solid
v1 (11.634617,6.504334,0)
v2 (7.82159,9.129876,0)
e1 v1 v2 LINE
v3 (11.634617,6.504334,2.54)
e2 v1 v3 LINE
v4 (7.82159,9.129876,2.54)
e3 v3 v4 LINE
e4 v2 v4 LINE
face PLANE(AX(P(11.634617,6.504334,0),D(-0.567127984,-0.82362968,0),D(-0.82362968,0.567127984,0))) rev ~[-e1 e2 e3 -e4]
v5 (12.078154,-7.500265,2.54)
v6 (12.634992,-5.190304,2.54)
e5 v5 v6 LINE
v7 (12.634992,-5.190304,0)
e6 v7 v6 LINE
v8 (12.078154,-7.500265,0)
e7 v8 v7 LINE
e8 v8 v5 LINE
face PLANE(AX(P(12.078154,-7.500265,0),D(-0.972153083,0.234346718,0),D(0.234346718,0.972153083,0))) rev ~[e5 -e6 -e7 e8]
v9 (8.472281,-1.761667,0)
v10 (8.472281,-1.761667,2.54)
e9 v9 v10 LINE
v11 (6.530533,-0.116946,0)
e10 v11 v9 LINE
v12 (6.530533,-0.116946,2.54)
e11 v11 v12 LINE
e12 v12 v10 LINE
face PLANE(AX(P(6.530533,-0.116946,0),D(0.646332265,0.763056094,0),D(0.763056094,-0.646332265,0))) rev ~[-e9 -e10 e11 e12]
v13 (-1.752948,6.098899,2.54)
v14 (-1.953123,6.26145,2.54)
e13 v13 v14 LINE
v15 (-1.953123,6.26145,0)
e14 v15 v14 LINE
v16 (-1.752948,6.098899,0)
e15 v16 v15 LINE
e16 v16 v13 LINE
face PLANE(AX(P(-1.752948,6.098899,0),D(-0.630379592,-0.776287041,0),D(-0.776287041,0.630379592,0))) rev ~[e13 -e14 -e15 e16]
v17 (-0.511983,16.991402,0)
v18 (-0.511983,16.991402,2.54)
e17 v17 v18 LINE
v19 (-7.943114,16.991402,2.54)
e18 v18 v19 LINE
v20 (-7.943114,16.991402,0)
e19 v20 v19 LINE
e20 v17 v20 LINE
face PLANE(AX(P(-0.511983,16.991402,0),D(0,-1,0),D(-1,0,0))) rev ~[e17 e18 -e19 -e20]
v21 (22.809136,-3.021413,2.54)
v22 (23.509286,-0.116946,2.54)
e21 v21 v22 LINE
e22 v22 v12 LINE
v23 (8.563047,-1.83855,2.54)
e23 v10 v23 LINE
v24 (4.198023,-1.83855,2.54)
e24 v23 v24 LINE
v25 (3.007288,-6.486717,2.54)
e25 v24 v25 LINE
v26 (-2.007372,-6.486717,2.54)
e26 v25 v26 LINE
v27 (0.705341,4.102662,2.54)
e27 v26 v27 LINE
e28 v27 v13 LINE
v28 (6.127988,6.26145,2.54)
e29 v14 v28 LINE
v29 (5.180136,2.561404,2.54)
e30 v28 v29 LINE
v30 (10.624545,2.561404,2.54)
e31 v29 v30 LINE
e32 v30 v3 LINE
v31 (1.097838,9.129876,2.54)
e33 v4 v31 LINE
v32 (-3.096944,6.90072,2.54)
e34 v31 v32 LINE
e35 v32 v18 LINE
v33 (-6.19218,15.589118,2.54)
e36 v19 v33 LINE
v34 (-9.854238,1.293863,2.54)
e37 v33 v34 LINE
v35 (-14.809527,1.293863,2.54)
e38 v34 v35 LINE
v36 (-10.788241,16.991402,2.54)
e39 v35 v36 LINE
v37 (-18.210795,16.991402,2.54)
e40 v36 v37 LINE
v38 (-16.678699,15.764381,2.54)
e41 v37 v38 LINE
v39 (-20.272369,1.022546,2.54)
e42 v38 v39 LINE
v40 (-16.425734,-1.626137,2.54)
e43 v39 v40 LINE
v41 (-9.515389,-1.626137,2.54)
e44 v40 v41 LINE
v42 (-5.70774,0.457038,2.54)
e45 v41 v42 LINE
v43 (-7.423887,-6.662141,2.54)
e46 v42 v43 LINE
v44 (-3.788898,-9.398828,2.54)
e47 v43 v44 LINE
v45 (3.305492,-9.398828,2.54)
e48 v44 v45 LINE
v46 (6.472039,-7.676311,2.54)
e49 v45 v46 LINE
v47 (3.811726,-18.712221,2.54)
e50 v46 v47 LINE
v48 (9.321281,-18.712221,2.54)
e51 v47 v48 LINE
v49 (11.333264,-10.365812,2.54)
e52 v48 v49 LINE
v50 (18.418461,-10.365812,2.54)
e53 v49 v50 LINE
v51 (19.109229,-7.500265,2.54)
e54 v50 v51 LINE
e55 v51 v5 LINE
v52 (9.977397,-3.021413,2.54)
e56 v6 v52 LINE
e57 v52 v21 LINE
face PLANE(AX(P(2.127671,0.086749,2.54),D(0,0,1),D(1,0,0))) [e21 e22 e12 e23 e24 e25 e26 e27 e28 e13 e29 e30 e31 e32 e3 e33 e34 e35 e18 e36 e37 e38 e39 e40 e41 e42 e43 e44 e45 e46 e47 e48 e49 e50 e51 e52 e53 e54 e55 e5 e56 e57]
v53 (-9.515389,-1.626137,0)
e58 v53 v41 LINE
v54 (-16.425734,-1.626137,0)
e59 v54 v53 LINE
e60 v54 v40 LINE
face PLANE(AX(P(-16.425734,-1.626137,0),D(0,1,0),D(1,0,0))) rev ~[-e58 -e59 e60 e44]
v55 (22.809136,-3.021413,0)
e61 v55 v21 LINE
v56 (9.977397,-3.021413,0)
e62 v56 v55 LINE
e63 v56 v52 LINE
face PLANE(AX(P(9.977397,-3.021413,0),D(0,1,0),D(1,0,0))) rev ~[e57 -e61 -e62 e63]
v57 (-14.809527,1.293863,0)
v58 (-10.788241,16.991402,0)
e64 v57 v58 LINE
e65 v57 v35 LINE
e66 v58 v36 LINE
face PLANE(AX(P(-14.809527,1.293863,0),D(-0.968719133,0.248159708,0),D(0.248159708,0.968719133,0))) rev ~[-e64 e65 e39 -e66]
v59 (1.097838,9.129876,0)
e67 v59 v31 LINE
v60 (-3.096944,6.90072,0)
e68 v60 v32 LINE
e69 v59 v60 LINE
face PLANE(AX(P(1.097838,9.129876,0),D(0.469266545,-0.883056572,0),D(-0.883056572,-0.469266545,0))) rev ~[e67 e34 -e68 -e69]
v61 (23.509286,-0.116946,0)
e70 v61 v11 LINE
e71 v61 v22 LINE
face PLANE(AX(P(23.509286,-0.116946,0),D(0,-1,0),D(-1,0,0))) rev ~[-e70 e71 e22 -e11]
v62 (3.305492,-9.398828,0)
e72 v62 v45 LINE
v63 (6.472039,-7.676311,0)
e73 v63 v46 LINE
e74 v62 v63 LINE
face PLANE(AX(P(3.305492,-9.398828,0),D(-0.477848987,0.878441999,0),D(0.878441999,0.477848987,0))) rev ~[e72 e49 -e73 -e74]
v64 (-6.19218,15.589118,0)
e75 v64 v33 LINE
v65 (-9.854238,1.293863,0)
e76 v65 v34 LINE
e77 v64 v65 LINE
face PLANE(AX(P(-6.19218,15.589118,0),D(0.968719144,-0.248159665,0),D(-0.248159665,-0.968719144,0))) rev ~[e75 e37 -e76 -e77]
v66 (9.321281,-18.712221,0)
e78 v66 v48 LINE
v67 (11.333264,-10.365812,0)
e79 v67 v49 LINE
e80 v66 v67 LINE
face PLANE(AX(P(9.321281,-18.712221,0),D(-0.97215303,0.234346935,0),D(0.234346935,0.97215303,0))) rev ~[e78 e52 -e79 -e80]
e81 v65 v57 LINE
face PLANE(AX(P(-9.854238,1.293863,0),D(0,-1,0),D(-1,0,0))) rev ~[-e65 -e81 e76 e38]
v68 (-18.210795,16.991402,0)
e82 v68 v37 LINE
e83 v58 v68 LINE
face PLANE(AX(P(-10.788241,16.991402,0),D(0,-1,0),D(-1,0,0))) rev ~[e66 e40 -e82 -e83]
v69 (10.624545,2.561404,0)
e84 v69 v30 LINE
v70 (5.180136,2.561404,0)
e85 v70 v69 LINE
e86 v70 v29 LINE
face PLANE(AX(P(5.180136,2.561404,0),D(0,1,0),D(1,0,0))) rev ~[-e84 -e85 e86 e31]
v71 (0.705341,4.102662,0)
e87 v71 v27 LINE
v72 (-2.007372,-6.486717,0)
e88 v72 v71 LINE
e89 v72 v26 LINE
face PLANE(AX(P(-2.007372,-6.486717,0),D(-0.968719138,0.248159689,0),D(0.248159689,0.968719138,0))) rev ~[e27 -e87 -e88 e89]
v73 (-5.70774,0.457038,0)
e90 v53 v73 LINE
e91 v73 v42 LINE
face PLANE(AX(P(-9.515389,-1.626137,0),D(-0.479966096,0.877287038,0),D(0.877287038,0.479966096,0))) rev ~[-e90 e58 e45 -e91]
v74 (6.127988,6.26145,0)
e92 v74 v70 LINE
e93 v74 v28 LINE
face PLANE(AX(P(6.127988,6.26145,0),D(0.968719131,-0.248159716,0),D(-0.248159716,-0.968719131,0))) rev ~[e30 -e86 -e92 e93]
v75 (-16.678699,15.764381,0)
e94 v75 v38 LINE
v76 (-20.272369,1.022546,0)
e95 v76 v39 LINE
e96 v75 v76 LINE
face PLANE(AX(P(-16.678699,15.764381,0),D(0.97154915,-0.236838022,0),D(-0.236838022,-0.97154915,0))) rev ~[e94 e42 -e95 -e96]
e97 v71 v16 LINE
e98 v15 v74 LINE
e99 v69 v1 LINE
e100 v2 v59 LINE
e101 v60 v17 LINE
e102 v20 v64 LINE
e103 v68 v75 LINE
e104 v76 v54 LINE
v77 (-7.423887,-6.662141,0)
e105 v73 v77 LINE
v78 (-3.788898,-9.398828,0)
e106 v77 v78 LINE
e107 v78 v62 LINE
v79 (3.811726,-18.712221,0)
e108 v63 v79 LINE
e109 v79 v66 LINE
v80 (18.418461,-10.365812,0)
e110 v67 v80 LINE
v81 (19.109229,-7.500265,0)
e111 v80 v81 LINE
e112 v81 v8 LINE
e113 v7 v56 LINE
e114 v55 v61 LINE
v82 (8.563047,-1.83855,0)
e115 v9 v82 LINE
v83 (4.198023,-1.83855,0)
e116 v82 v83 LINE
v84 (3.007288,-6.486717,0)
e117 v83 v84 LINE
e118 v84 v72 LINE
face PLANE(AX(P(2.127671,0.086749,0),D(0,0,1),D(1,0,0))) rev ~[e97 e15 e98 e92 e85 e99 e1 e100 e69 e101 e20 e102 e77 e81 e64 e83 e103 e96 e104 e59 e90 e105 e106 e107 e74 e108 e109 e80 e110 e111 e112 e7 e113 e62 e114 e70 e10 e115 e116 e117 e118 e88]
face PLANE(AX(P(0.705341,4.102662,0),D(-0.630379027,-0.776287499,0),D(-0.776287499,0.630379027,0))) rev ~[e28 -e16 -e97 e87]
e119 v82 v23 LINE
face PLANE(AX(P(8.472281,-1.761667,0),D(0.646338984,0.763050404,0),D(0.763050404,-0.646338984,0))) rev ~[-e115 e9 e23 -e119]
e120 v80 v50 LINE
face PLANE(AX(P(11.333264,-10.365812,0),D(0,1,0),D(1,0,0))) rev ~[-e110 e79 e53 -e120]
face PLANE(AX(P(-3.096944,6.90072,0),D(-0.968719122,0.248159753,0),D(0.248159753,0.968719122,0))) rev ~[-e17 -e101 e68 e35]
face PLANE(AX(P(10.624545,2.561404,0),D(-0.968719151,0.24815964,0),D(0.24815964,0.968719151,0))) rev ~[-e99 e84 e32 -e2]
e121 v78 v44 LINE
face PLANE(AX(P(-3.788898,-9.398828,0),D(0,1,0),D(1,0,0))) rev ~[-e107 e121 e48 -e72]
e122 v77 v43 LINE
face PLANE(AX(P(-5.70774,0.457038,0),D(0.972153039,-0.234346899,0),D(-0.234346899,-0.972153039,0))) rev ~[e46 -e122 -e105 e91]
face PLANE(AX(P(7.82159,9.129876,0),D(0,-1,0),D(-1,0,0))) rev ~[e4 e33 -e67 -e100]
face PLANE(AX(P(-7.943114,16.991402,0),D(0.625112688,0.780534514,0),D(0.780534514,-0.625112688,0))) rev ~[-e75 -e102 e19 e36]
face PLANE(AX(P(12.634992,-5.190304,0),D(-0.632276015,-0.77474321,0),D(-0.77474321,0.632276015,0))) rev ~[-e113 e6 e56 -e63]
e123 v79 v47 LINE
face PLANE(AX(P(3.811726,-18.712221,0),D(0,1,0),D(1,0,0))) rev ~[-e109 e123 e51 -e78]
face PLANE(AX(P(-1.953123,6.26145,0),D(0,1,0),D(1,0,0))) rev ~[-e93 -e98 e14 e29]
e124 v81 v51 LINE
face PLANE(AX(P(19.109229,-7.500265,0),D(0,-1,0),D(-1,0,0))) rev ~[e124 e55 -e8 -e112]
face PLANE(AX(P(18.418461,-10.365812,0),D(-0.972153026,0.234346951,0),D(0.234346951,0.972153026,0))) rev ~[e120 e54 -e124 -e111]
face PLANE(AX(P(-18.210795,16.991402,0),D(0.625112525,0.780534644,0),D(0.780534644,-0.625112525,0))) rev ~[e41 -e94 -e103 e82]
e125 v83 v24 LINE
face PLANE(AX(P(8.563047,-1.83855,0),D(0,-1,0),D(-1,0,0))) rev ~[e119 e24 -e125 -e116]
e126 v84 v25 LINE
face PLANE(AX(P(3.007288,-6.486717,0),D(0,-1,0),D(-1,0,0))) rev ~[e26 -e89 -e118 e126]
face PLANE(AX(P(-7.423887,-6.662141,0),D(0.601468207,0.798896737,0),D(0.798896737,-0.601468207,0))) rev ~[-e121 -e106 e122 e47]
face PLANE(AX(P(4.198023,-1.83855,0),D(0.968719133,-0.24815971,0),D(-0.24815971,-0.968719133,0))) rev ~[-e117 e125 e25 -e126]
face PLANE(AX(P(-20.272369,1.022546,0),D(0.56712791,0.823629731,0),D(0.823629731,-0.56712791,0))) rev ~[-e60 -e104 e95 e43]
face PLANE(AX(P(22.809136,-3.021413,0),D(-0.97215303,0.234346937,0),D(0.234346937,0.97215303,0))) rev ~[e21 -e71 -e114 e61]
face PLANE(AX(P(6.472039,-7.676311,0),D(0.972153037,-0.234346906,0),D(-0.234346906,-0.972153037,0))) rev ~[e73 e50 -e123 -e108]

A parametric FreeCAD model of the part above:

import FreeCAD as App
import Part
import Sketcher
from FreeCAD import Vector
Q = App.Units.Quantity

doc = App.newDocument("Part")
params = doc.addObject("Spreadsheet::Sheet", "Params")
for row, (alias, value) in enumerate([
    ("pad1_length", "0.1 in"),
], start=1):
    params.set(f"A{row}", alias)
    params.set(f"B{row}", "=" + value)
    params.setAlias(f"B{row}", alias)

body = doc.addObject("PartDesign::Body", "Body")

sketch1 = body.newObject("Sketcher::SketchObject", "Sketch")
sketch1.AttachmentSupport = (doc.getObject("XY_Plane"), [""])
sketch1.MapMode = "FlatFace"
sketch1.addGeometry([
    Part.LineSegment(Vector(0.71, 4.1, 0), Vector(-1.75, 6.1, 0)),
    Part.LineSegment(Vector(-1.75, 6.1, 0), Vector(-1.95, 6.26, 0)),
    Part.LineSegment(Vector(-1.95, 6.26, 0), Vector(6.13, 6.26, 0)),
    Part.LineSegment(Vector(6.13, 6.26, 0), Vector(5.18, 2.56, 0)),
    Part.LineSegment(Vector(5.18, 2.56, 0), Vector(10.62, 2.56, 0)),
    Part.LineSegment(Vector(10.62, 2.56, 0), Vector(11.63, 6.5, 0)),
    Part.LineSegment(Vector(11.63, 6.5, 0), Vector(7.82, 9.13, 0)),
    Part.LineSegment(Vector(7.82, 9.13, 0), Vector(1.1, 9.13, 0)),
    Part.LineSegment(Vector(1.1, 9.13, 0), Vector(-3.1, 6.9, 0)),
    Part.LineSegment(Vector(-3.1, 6.9, 0), Vector(-0.51, 16.99, 0)),
    Part.LineSegment(Vector(-0.51, 16.99, 0), Vector(-7.94, 16.99, 0)),
    Part.LineSegment(Vector(-7.94, 16.99, 0), Vector(-6.19, 15.59, 0)),
    Part.LineSegment(Vector(-6.19, 15.59, 0), Vector(-9.85, 1.29, 0)),
    Part.LineSegment(Vector(-9.85, 1.29, 0), Vector(-14.81, 1.29, 0)),
    Part.LineSegment(Vector(-14.81, 1.29, 0), Vector(-10.79, 16.99, 0)),
    Part.LineSegment(Vector(-10.79, 16.99, 0), Vector(-18.21, 16.99, 0)),
    Part.LineSegment(Vector(-18.21, 16.99, 0), Vector(-16.68, 15.76, 0)),
    Part.LineSegment(Vector(-16.68, 15.76, 0), Vector(-20.27, 1.02, 0)),
    Part.LineSegment(Vector(-20.27, 1.02, 0), Vector(-16.43, -1.63, 0)),
    Part.LineSegment(Vector(-16.43, -1.63, 0), Vector(-9.52, -1.63, 0)),
    Part.LineSegment(Vector(-9.52, -1.63, 0), Vector(-5.71, 0.46, 0)),
    Part.LineSegment(Vector(-5.71, 0.46, 0), Vector(-7.42, -6.66, 0)),
    Part.LineSegment(Vector(-7.42, -6.66, 0), Vector(-3.79, -9.4, 0)),
    Part.LineSegment(Vector(-3.79, -9.4, 0), Vector(3.31, -9.4, 0)),
    Part.LineSegment(Vector(3.31, -9.4, 0), Vector(6.47, -7.68, 0)),
    Part.LineSegment(Vector(6.47, -7.68, 0), Vector(3.81, -18.71, 0)),
    Part.LineSegment(Vector(3.81, -18.71, 0), Vector(9.32, -18.71, 0)),
    Part.LineSegment(Vector(9.32, -18.71, 0), Vector(11.33, -10.37, 0)),
    Part.LineSegment(Vector(11.33, -10.37, 0), Vector(18.42, -10.37, 0)),
    Part.LineSegment(Vector(18.42, -10.37, 0), Vector(19.11, -7.5, 0)),
    Part.LineSegment(Vector(19.11, -7.5, 0), Vector(12.08, -7.5, 0)),
    Part.LineSegment(Vector(12.08, -7.5, 0), Vector(12.63, -5.19, 0)),
    Part.LineSegment(Vector(12.63, -5.19, 0), Vector(9.98, -3.02, 0)),
    Part.LineSegment(Vector(9.98, -3.02, 0), Vector(22.81, -3.02, 0)),
    Part.LineSegment(Vector(22.81, -3.02, 0), Vector(23.51, -0.12, 0)),
    Part.LineSegment(Vector(23.51, -0.12, 0), Vector(6.53, -0.12, 0)),
    Part.LineSegment(Vector(6.53, -0.12, 0), Vector(8.47, -1.76, 0)),
    Part.LineSegment(Vector(8.47, -1.76, 0), Vector(8.56, -1.84, 0)),
    Part.LineSegment(Vector(8.56, -1.84, 0), Vector(4.2, -1.84, 0)),
    Part.LineSegment(Vector(4.2, -1.84, 0), Vector(3.01, -6.49, 0)),
    Part.LineSegment(Vector(3.01, -6.49, 0), Vector(-2.01, -6.49, 0)),
    Part.LineSegment(Vector(-2.01, -6.49, 0), Vector(0.71, 4.1, 0)),
], False)
sketch1.addConstraint([
    Sketcher.Constraint("Coincident", 0, 2, 1, 1),
    Sketcher.Constraint("Coincident", 1, 2, 2, 1),
    Sketcher.Constraint("Coincident", 2, 2, 3, 1),
    Sketcher.Constraint("Coincident", 3, 2, 4, 1),
    Sketcher.Constraint("Coincident", 4, 2, 5, 1),
    Sketcher.Constraint("Coincident", 5, 2, 6, 1),
    Sketcher.Constraint("Coincident", 6, 2, 7, 1),
    Sketcher.Constraint("Coincident", 7, 2, 8, 1),
    Sketcher.Constraint("Coincident", 8, 2, 9, 1),
    Sketcher.Constraint("Coincident", 9, 2, 10, 1),
    Sketcher.Constraint("Coincident", 10, 2, 11, 1),
    Sketcher.Constraint("Coincident", 11, 2, 12, 1),
    Sketcher.Constraint("Coincident", 12, 2, 13, 1),
    Sketcher.Constraint("Coincident", 13, 2, 14, 1),
    Sketcher.Constraint("Coincident", 14, 2, 15, 1),
    Sketcher.Constraint("Coincident", 15, 2, 16, 1),
    Sketcher.Constraint("Coincident", 16, 2, 17, 1),
    Sketcher.Constraint("Coincident", 17, 2, 18, 1),
    Sketcher.Constraint("Coincident", 18, 2, 19, 1),
    Sketcher.Constraint("Coincident", 19, 2, 20, 1),
    Sketcher.Constraint("Coincident", 20, 2, 21, 1),
    Sketcher.Constraint("Coincident", 21, 2, 22, 1),
    Sketcher.Constraint("Coincident", 22, 2, 23, 1),
    Sketcher.Constraint("Coincident", 23, 2, 24, 1),
    Sketcher.Constraint("Coincident", 24, 2, 25, 1),
    Sketcher.Constraint("Coincident", 25, 2, 26, 1),
    Sketcher.Constraint("Coincident", 26, 2, 27, 1),
    Sketcher.Constraint("Coincident", 27, 2, 28, 1),
    Sketcher.Constraint("Coincident", 28, 2, 29, 1),
    Sketcher.Constraint("Coincident", 29, 2, 30, 1),
    Sketcher.Constraint("Coincident", 30, 2, 31, 1),
    Sketcher.Constraint("Coincident", 31, 2, 32, 1),
    Sketcher.Constraint("Coincident", 32, 2, 33, 1),
    Sketcher.Constraint("Coincident", 33, 2, 34, 1),
    Sketcher.Constraint("Coincident", 34, 2, 35, 1),
    Sketcher.Constraint("Coincident", 35, 2, 36, 1),
    Sketcher.Constraint("Coincident", 36, 2, 37, 1),
    Sketcher.Constraint("Coincident", 37, 2, 38, 1),
    Sketcher.Constraint("Coincident", 38, 2, 39, 1),
    Sketcher.Constraint("Coincident", 39, 2, 40, 1),
    Sketcher.Constraint("Coincident", 40, 2, 41, 1),
    Sketcher.Constraint("Coincident", 41, 2, 0, 1),
    Sketcher.Constraint("Horizontal", 2),
    Sketcher.Constraint("Horizontal", 4),
    Sketcher.Constraint("Horizontal", 7),
    Sketcher.Constraint("Horizontal", 10),
    Sketcher.Constraint("Horizontal", 13),
    Sketcher.Constraint("Horizontal", 15),
    Sketcher.Constraint("Horizontal", 19),
    Sketcher.Constraint("Horizontal", 23),
    Sketcher.Constraint("Horizontal", 26),
    Sketcher.Constraint("Horizontal", 28),
    Sketcher.Constraint("Horizontal", 30),
    Sketcher.Constraint("Horizontal", 33),
    Sketcher.Constraint("Horizontal", 35),
    Sketcher.Constraint("Horizontal", 38),
    Sketcher.Constraint("Horizontal", 40),
    Sketcher.Constraint("Parallel", 0, 1),
    Sketcher.Constraint("Parallel", 3, 5),
    Sketcher.Constraint("Parallel", 5, 9),
    Sketcher.Constraint("Parallel", 9, 12),
    Sketcher.Constraint("Parallel", 12, 14),
    Sketcher.Constraint("Parallel", 11, 16),
    Sketcher.Constraint("Parallel", 6, 18),
    Sketcher.Constraint("Parallel", 21, 25),
    Sketcher.Constraint("Parallel", 25, 27),
    Sketcher.Constraint("Parallel", 27, 29),
    Sketcher.Constraint("Parallel", 29, 31),
    Sketcher.Constraint("Parallel", 31, 34),
    Sketcher.Constraint("Parallel", 14, 39),
    Sketcher.Constraint("Parallel", 39, 41),
    Sketcher.Constraint("Horizontal", 10, 2, 14, 2),
    Sketcher.Constraint("Angle", 17, Q("-103.699993 deg")),
    Sketcher.Constraint("DistanceY", 11, 2, 16, 2, Q("0.0069001 in")),
    Sketcher.Constraint("Distance", 8, 4.750298),
    Sketcher.Constraint("Distance", 36, 2.544699),
    Sketcher.Constraint("DistanceX", 2, 1, 2, 2, 8.081111),
    Sketcher.Constraint("DistanceX", 4, 1, 4, 2, 5.444409),
    Sketcher.Constraint("DistanceX", 7, 2, 7, 1, 6.723752),
    Sketcher.Constraint("DistanceX", 10, 2, 10, 1, 7.431131),
    Sketcher.Constraint("DistanceX", 13, 2, 13, 1, 4.955289),
    Sketcher.Constraint("DistanceX", 23, 1, 23, 2, 7.09439),
    Sketcher.Constraint("DistanceX", 33, 1, 33, 2, 12.831739),
    Sketcher.Constraint("DistanceX", 40, 2, 40, 1, 5.01466),
    Sketcher.Constraint("DistanceY", -1, 1, 0, 2, 6.098899),
    Sketcher.Constraint("DistanceX", 16, 2, -1, 1, 16.678699),
    Sketcher.Constraint("DistanceX", 22, 2, -1, 1, 3.788898),
    Sketcher.Constraint("DistanceX", 2, 2, 6, 2, 1.693602),
    Sketcher.Constraint("DistanceY", 18, 2, 13, 2, 2.92),
    Sketcher.Constraint("DistanceX", 12, 2, 20, 2, 4.146498),
    Sketcher.Constraint("DistanceY", 27, 2, 24, 2, 2.689501),
    Sketcher.Constraint("DistanceY", 24, 2, 32, 2, 4.654898),
    Sketcher.Constraint("DistanceX", 37, 2, 4, 2, 2.061498),
    Sketcher.Constraint("Distance", 5, 4.070251),
    Sketcher.Constraint("Distance", 6, 4.629541),
    Sketcher.Constraint("Distance", 9, 10.41652),
    Sketcher.Constraint("Distance", 11, 2.24325),
    Sketcher.Constraint("Distance", 16, 1.96288),
    Sketcher.Constraint("Distance", 22, 4.550011),
    Sketcher.Constraint("Distance", 24, 3.604731),
    Sketcher.Constraint("Distance", 25, 11.35203),
    Sketcher.Constraint("Distance", 27, 8.585489),
    Sketcher.Constraint("Distance", 29, 2.94763),
    Sketcher.Constraint("Distance", 31, 2.376129),
    Sketcher.Constraint("Distance", 32, 3.430291),
    Sketcher.Constraint("Distance", 37, 0.118952),
    Sketcher.Constraint("Distance", 39, 4.798261),
    Sketcher.Constraint("Distance", 41, 10.93132),
    Sketcher.Constraint("DistanceX", 15, 2, 15, 1, 7.422554),
    Sketcher.Constraint("DistanceX", 19, 1, 19, 2, 6.910345),
    Sketcher.Constraint("DistanceX", 26, 1, 26, 2, 5.509555),
    Sketcher.Constraint("DistanceX", 28, 1, 28, 2, 7.085197),
    Sketcher.Constraint("DistanceX", 30, 2, 30, 1, 7.031075),
    Sketcher.Constraint("DistanceX", 35, 2, 35, 1, 16.978753),
    Sketcher.Constraint("DistanceX", 38, 2, 38, 1, 4.365024),
    Sketcher.Constraint("DistanceY", -1, 1, 1, 2, 6.26145),
    Sketcher.Constraint("DistanceX", -1, 1, 2, 2, 6.127988),
    Sketcher.Constraint("DistanceY", -1, 1, 8, 2, 6.90072),
    Sketcher.Constraint("DistanceX", 11, 2, -1, 1, 6.19218),
    Sketcher.Constraint("DistanceX", 17, 2, -1, 1, 20.272369),
    Sketcher.Constraint("DistanceX", 19, 2, -1, 1, 9.515389),
    Sketcher.Constraint("DistanceY", 21, 2, -1, 1, 6.662141),
    Sketcher.Constraint("DistanceX", -1, 1, 24, 2, 6.472039),
    Sketcher.Constraint("DistanceY", 24, 2, -1, 1, 7.676311),
    Sketcher.Constraint("DistanceX", -1, 1, 36, 2, 8.472281),
    Sketcher.Constraint("DistanceY", 37, 2, -1, 1, 1.83855),
])
pad1 = body.newObject("PartDesign::Pad", "Pad")
pad1.Profile = sketch1
pad1.setExpression("Length", "Params.pad1_length")

doc.recompute()
